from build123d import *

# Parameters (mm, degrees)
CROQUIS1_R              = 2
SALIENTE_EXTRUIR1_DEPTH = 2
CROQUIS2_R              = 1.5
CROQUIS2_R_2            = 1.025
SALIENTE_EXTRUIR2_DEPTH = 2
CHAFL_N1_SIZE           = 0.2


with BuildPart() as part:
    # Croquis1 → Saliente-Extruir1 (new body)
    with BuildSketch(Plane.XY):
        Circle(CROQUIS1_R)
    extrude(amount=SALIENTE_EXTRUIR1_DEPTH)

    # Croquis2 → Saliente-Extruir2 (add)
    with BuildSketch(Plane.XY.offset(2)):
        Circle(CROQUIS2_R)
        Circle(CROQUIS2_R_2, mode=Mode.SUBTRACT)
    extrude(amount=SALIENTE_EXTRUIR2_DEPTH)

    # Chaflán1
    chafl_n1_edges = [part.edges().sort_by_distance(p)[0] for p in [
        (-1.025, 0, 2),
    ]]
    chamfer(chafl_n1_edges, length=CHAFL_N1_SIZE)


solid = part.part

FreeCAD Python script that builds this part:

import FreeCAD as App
import Part
import Sketcher


def edges_at(feature, points):
    """Names of the edges that pass closest to the given points."""
    edges = feature.Shape.Edges
    near = lambda p: min(range(len(edges)), key=lambda i: edges[i].distToShape(Part.Vertex(*p))[0])
    return sorted({f"Edge{near(p) + 1}" for p in points})

doc = App.newDocument("Part")
body = doc.addObject("PartDesign::Body", "Body")

# Sketch on XY plane
sketch1 = doc.addObject("Sketcher::SketchObject", "Sketch")
body.addObject(sketch1)
sketch1.AttachmentSupport = (doc.XY_Plane, [""])
sketch1.MapMode = "FlatFace"
sketch1.addGeometry(Part.Circle(App.Vector(0, 0, 0), App.Vector(0, 0, 1), 2), False)
sketch1.addConstraint(Sketcher.Constraint("Coincident", 0, 3, -1, 1))
sketch1.addConstraint(Sketcher.Constraint("Diameter", 0, 4.0))
pad1 = doc.addObject("PartDesign::Pad", "Pad")
body.addObject(pad1)
pad1.Profile = sketch1
pad1.Length = 2

# Sketch on XY plane
sketch2 = doc.addObject("Sketcher::SketchObject", "Sketch001")
body.addObject(sketch2)
sketch2.AttachmentSupport = (doc.XY_Plane, [""])
sketch2.MapMode = "FlatFace"
sketch2.AttachmentOffset = App.Placement(App.Vector(0, 0, 2), App.Rotation())
sketch2.addGeometry(Part.Circle(App.Vector(0, 0, 0), App.Vector(0, 0, 1), 1.5), False)
sketch2.addGeometry(Part.Circle(App.Vector(0, 0, 0), App.Vector(0, 0, 1), 1), False)
sketch2.addConstraint(Sketcher.Constraint("Coincident", 0, 3, -1, 1))
sketch2.addConstraint(Sketcher.Constraint("Coincident", 1, 3, -1, 1))
sketch2.addConstraint(Sketcher.Constraint("Diameter", 0, 3.0))
sketch2.addConstraint(Sketcher.Constraint("Diameter", 1, 2.05))
pad2 = doc.addObject("PartDesign::Pad", "Pad001")
body.addObject(pad2)
pad2.Profile = sketch2
pad2.Length = 2
doc.recompute()

chamfer = doc.addObject("PartDesign::Chamfer", "Chamfer")
body.addObject(chamfer)
chamfer.Base = (pad2, edges_at(pad2, [(-1.025, 0, 2)]))
chamfer.Size = 0.2

doc.recompute()
